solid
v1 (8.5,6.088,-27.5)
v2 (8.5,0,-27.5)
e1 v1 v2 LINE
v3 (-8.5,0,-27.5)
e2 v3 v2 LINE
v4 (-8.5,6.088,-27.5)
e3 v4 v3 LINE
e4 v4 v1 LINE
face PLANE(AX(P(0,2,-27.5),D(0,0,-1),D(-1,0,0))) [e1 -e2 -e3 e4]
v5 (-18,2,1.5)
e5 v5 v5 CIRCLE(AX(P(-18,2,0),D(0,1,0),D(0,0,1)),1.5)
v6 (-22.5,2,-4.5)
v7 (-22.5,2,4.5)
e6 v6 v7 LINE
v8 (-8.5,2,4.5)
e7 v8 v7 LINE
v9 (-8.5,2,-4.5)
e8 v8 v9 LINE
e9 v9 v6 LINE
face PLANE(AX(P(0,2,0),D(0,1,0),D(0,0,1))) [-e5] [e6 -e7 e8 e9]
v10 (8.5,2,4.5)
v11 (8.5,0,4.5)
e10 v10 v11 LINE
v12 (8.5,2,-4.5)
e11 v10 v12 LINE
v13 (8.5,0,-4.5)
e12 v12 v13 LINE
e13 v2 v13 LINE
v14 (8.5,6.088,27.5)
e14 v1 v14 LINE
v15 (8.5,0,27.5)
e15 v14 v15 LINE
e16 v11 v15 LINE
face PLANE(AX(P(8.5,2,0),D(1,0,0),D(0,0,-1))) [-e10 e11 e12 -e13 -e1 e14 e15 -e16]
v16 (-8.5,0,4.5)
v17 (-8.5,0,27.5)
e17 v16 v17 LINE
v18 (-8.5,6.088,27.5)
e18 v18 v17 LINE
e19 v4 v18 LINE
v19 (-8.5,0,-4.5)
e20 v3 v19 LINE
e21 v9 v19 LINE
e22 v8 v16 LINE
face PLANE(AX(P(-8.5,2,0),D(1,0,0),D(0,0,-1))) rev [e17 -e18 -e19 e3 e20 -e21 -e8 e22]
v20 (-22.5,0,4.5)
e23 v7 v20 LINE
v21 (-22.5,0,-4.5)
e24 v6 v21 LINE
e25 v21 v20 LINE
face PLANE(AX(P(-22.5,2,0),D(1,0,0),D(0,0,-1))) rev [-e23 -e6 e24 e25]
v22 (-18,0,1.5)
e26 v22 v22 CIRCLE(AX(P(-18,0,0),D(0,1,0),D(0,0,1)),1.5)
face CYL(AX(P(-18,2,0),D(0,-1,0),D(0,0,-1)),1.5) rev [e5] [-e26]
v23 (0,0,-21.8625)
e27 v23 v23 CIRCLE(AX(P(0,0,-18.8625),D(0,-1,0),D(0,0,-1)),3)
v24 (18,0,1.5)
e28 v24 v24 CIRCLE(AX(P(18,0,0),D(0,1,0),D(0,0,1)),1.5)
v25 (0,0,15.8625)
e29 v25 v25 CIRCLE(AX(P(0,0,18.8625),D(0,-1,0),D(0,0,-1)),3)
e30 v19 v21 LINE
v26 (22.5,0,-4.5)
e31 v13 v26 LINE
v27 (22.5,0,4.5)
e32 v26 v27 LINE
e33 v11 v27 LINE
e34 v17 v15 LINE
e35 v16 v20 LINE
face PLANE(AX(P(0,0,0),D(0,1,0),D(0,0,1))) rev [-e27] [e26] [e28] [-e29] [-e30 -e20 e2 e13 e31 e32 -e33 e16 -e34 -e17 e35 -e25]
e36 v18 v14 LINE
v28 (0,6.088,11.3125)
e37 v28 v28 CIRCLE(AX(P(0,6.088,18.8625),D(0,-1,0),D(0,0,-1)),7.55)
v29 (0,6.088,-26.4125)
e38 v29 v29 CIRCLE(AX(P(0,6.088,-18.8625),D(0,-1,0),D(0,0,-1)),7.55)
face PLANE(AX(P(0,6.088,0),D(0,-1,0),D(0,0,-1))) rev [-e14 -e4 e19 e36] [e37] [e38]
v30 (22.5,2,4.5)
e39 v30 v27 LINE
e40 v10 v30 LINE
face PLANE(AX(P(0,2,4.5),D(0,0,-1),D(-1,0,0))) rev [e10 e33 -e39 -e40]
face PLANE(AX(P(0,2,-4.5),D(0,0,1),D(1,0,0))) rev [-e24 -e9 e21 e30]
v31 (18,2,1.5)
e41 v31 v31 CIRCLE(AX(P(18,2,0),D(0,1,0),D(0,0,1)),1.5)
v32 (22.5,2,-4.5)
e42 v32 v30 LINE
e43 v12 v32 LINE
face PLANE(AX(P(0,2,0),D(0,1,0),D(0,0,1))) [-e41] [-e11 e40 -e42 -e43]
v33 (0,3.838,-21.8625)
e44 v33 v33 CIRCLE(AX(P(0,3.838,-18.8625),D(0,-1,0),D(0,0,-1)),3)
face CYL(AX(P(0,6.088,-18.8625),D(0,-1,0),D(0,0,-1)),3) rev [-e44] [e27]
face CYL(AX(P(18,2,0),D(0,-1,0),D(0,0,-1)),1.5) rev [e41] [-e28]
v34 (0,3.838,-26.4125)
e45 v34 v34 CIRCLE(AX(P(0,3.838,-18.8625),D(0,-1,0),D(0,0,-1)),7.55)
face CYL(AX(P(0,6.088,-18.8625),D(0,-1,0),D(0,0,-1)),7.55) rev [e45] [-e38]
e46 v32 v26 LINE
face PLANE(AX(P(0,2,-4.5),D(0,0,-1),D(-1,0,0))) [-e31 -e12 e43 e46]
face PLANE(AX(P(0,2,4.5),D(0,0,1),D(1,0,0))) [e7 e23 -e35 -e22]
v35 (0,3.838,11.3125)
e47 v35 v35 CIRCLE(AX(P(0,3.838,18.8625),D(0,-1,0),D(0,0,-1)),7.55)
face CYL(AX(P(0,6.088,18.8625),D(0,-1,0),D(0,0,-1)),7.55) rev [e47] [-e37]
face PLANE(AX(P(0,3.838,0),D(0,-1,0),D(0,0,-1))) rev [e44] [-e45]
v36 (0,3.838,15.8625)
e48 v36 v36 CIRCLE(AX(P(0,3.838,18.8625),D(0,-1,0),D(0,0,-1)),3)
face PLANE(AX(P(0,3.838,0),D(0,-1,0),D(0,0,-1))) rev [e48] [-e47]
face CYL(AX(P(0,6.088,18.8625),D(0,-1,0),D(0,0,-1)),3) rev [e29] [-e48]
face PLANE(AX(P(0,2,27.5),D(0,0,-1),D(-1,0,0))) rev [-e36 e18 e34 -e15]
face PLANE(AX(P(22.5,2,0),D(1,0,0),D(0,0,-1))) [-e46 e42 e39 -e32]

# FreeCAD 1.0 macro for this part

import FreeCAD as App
import Part
import Sketcher


def add_polygon(sketch, points):
    """Adds a closed chain of lines whose ends are joined by coincident constraints."""
    first, n = sketch.GeometryCount, len(points)
    for a, b in zip(points, points[1:] + points[:1]):
        sketch.addGeometry(Part.LineSegment(App.Vector(*a, 0), App.Vector(*b, 0)), False)
    for i in range(n):
        sketch.addConstraint(Sketcher.Constraint("Coincident", first + i, 2, first + (i + 1) % n, 1))

doc = App.newDocument("Part")
body = doc.addObject("PartDesign::Body", "Body")

# Sketch on XZ plane
sketch1 = body.newObject("Sketcher::SketchObject", "Sketch")
sketch1.AttachmentSupport = (doc.getObject("XZ_Plane"), [""])
sketch1.MapMode = "FlatFace"
add_polygon(sketch1, [(-8.5, 4.5), (-8.5, 27.5), (8.5, 27.5), (8.5, 4.5), (22.5, 4.5), (22.5, -4.5), (8.5, -4.5), (8.5, -27.5), (-8.5, -27.5), (-8.5, -4.5), (-22.5, -4.5), (-22.5, 4.5)])  # lines 0-11
sketch1.addGeometry(Part.Circle(App.Vector(-18, 0, 0), App.Vector(0, 0, 1), 1.5), False)  # 12
sketch1.addGeometry(Part.Circle(App.Vector(18, 0, 0), App.Vector(0, 0, 1), 1.5), False)  # 13
sketch1.addConstraint(Sketcher.Constraint("Vertical", 0))
sketch1.addConstraint(Sketcher.Constraint("Horizontal", 1))
sketch1.addConstraint(Sketcher.Constraint("Vertical", 2))
sketch1.addConstraint(Sketcher.Constraint("Horizontal", 3))
sketch1.addConstraint(Sketcher.Constraint("Vertical", 4))
sketch1.addConstraint(Sketcher.Constraint("Horizontal", 5))
sketch1.addConstraint(Sketcher.Constraint("Vertical", 6))
sketch1.addConstraint(Sketcher.Constraint("Horizontal", 7))
sketch1.addConstraint(Sketcher.Constraint("Vertical", 8))
sketch1.addConstraint(Sketcher.Constraint("Horizontal", 9))
sketch1.addConstraint(Sketcher.Constraint("Vertical", 10))
sketch1.addConstraint(Sketcher.Constraint("Horizontal", 11))
sketch1.addConstraint(Sketcher.Constraint("Equal", 12, 13))
sketch1.addConstraint(Sketcher.Constraint("Symmetric", 12, 3, 13, 3, -1, 1))
sketch1.addConstraint(Sketcher.Constraint("Symmetric", 0, 2, 6, 2, -1, 1))
sketch1.addConstraint(Sketcher.Constraint("Symmetric", 2, 2, 8, 2, -1, 1))
sketch1.addConstraint(Sketcher.Constraint("Symmetric", 4, 2, 10, 2, -1, 1))
sketch1.addConstraint(Sketcher.Constraint("Symmetric", 5, 2, 8, 2, -2))
sketch1.addConstraint(Sketcher.Constraint("PointOnObject", 12, 3, -1))
sketch1.addConstraint(Sketcher.Constraint("Diameter", 12, 3.0))
sketch1.addConstraint(Sketcher.Constraint("DistanceX", 1, 1, 1, 2, 17.0))
sketch1.addConstraint(Sketcher.Constraint("DistanceX", 3, 1, 3, 2, 14.0))
sketch1.addConstraint(Sketcher.Constraint("DistanceY", 0, 1, 0, 2, 23.0))
sketch1.addConstraint(Sketcher.Constraint("DistanceY", 4, 2, 4, 1, 9.0))
sketch1.addConstraint(Sketcher.Constraint("DistanceX", 12, 3, -1, 1, 18.0))
pad1 = body.newObject("PartDesign::Pad", "Pad")
pad1.Profile = sketch1
pad1.Length = 2
pad1.Reversed = True

# Sketch on XZ plane
sketch2 = body.newObject("Sketcher::SketchObject", "Sketch001")
sketch2.AttachmentSupport = (doc.getObject("XZ_Plane"), [""])
sketch2.MapMode = "FlatFace"
sketch2.AttachmentOffset = App.Placement(App.Vector(0, 0, -2), App.Rotation())
add_polygon(sketch2, [(-8.5, -27.5), (-8.5, 27.5), (8.5, 27.5), (8.5, -27.5)])  # lines 0-3
sketch2.addConstraint(Sketcher.Constraint("Vertical", 0))
sketch2.addConstraint(Sketcher.Constraint("Horizontal", 1))
sketch2.addConstraint(Sketcher.Constraint("Vertical", 2))
sketch2.addConstraint(Sketcher.Constraint("Horizontal", 3))
sketch2.addConstraint(Sketcher.Constraint("Symmetric", 0, 2, 2, 2, -1, 1))
sketch2.addConstraint(Sketcher.Constraint("DistanceX", 1, 1, 1, 2, 17.0))
sketch2.addConstraint(Sketcher.Constraint("DistanceY", 0, 1, 0, 2, 55.0))
pad2 = body.newObject("PartDesign::Pad", "Pad001")
pad2.Profile = sketch2
pad2.Length = 1.838
pad2.Reversed = True

# Sketch on XZ plane
sketch3 = body.newObject("Sketcher::SketchObject", "Sketch002")
sketch3.AttachmentSupport = (doc.getObject("XZ_Plane"), [""])
sketch3.MapMode = "FlatFace"
sketch3.AttachmentOffset = App.Placement(App.Vector(0, 0, -3.838), App.Rotation())
add_polygon(sketch3, [(-8.5, -27.5), (-8.5, 27.5), (8.5, 27.5), (8.5, -27.5)])  # lines 0-3
sketch3.addGeometry(Part.Circle(App.Vector(0, 18.8625, 0), App.Vector(0, 0, 1), 7.55), False)  # 4
sketch3.addGeometry(Part.Circle(App.Vector(0, -18.8625, 0), App.Vector(0, 0, 1), 7.55), False)  # 5
sketch3.addConstraint(Sketcher.Constraint("Vertical", 0))
sketch3.addConstraint(Sketcher.Constraint("Horizontal", 1))
sketch3.addConstraint(Sketcher.Constraint("Vertical", 2))
sketch3.addConstraint(Sketcher.Constraint("Horizontal", 3))
sketch3.addConstraint(Sketcher.Constraint("Equal", 4, 5))
sketch3.addConstraint(Sketcher.Constraint("Symmetric", 4, 3, 5, 3, -1, 1))
sketch3.addConstraint(Sketcher.Constraint("Symmetric", 0, 2, 2, 2, -1, 1))
sketch3.addConstraint(Sketcher.Constraint("PointOnObject", 4, 3, -2))
sketch3.addConstraint(Sketcher.Constraint("Diameter", 4, 15.1))
sketch3.addConstraint(Sketcher.Constraint("DistanceX", 1, 1, 1, 2, 17.0))
sketch3.addConstraint(Sketcher.Constraint("DistanceY", 0, 1, 0, 2, 55.0))
sketch3.addConstraint(Sketcher.Constraint("DistanceY", 5, 3, 4, 3, 37.725))
pad3 = body.newObject("PartDesign::Pad", "Pad002")
pad3.Profile = sketch3
pad3.Length = 2.25
pad3.Reversed = True

# Sketch on XZ plane
sketch4 = body.newObject("Sketcher::SketchObject", "Sketch003")
sketch4.AttachmentSupport = (doc.getObject("XZ_Plane"), [""])
sketch4.MapMode = "FlatFace"
sketch4.addGeometry(Part.Circle(App.Vector(0, -18.8625, 0), App.Vector(0, 0, 1), 3), False)
sketch4.addGeometry(Part.Circle(App.Vector(0, 18.8625, 0), App.Vector(0, 0, 1), 3), False)
sketch4.addConstraint(Sketcher.Constraint("Equal", 0, 1))
sketch4.addConstraint(Sketcher.Constraint("Symmetric", 0, 3, 1, 3, -1, 1))
sketch4.addConstraint(Sketcher.Constraint("PointOnObject", 0, 3, -2))
sketch4.addConstraint(Sketcher.Constraint("Diameter", 0, 6.0))
sketch4.addConstraint(Sketcher.Constraint("DistanceY", 0, 3, 1, 3, 37.725))
pocket1 = body.newObject("PartDesign::Pocket", "Pocket")
pocket1.Profile = sketch4
pocket1.Type = "ThroughAll"

doc.recompute()
